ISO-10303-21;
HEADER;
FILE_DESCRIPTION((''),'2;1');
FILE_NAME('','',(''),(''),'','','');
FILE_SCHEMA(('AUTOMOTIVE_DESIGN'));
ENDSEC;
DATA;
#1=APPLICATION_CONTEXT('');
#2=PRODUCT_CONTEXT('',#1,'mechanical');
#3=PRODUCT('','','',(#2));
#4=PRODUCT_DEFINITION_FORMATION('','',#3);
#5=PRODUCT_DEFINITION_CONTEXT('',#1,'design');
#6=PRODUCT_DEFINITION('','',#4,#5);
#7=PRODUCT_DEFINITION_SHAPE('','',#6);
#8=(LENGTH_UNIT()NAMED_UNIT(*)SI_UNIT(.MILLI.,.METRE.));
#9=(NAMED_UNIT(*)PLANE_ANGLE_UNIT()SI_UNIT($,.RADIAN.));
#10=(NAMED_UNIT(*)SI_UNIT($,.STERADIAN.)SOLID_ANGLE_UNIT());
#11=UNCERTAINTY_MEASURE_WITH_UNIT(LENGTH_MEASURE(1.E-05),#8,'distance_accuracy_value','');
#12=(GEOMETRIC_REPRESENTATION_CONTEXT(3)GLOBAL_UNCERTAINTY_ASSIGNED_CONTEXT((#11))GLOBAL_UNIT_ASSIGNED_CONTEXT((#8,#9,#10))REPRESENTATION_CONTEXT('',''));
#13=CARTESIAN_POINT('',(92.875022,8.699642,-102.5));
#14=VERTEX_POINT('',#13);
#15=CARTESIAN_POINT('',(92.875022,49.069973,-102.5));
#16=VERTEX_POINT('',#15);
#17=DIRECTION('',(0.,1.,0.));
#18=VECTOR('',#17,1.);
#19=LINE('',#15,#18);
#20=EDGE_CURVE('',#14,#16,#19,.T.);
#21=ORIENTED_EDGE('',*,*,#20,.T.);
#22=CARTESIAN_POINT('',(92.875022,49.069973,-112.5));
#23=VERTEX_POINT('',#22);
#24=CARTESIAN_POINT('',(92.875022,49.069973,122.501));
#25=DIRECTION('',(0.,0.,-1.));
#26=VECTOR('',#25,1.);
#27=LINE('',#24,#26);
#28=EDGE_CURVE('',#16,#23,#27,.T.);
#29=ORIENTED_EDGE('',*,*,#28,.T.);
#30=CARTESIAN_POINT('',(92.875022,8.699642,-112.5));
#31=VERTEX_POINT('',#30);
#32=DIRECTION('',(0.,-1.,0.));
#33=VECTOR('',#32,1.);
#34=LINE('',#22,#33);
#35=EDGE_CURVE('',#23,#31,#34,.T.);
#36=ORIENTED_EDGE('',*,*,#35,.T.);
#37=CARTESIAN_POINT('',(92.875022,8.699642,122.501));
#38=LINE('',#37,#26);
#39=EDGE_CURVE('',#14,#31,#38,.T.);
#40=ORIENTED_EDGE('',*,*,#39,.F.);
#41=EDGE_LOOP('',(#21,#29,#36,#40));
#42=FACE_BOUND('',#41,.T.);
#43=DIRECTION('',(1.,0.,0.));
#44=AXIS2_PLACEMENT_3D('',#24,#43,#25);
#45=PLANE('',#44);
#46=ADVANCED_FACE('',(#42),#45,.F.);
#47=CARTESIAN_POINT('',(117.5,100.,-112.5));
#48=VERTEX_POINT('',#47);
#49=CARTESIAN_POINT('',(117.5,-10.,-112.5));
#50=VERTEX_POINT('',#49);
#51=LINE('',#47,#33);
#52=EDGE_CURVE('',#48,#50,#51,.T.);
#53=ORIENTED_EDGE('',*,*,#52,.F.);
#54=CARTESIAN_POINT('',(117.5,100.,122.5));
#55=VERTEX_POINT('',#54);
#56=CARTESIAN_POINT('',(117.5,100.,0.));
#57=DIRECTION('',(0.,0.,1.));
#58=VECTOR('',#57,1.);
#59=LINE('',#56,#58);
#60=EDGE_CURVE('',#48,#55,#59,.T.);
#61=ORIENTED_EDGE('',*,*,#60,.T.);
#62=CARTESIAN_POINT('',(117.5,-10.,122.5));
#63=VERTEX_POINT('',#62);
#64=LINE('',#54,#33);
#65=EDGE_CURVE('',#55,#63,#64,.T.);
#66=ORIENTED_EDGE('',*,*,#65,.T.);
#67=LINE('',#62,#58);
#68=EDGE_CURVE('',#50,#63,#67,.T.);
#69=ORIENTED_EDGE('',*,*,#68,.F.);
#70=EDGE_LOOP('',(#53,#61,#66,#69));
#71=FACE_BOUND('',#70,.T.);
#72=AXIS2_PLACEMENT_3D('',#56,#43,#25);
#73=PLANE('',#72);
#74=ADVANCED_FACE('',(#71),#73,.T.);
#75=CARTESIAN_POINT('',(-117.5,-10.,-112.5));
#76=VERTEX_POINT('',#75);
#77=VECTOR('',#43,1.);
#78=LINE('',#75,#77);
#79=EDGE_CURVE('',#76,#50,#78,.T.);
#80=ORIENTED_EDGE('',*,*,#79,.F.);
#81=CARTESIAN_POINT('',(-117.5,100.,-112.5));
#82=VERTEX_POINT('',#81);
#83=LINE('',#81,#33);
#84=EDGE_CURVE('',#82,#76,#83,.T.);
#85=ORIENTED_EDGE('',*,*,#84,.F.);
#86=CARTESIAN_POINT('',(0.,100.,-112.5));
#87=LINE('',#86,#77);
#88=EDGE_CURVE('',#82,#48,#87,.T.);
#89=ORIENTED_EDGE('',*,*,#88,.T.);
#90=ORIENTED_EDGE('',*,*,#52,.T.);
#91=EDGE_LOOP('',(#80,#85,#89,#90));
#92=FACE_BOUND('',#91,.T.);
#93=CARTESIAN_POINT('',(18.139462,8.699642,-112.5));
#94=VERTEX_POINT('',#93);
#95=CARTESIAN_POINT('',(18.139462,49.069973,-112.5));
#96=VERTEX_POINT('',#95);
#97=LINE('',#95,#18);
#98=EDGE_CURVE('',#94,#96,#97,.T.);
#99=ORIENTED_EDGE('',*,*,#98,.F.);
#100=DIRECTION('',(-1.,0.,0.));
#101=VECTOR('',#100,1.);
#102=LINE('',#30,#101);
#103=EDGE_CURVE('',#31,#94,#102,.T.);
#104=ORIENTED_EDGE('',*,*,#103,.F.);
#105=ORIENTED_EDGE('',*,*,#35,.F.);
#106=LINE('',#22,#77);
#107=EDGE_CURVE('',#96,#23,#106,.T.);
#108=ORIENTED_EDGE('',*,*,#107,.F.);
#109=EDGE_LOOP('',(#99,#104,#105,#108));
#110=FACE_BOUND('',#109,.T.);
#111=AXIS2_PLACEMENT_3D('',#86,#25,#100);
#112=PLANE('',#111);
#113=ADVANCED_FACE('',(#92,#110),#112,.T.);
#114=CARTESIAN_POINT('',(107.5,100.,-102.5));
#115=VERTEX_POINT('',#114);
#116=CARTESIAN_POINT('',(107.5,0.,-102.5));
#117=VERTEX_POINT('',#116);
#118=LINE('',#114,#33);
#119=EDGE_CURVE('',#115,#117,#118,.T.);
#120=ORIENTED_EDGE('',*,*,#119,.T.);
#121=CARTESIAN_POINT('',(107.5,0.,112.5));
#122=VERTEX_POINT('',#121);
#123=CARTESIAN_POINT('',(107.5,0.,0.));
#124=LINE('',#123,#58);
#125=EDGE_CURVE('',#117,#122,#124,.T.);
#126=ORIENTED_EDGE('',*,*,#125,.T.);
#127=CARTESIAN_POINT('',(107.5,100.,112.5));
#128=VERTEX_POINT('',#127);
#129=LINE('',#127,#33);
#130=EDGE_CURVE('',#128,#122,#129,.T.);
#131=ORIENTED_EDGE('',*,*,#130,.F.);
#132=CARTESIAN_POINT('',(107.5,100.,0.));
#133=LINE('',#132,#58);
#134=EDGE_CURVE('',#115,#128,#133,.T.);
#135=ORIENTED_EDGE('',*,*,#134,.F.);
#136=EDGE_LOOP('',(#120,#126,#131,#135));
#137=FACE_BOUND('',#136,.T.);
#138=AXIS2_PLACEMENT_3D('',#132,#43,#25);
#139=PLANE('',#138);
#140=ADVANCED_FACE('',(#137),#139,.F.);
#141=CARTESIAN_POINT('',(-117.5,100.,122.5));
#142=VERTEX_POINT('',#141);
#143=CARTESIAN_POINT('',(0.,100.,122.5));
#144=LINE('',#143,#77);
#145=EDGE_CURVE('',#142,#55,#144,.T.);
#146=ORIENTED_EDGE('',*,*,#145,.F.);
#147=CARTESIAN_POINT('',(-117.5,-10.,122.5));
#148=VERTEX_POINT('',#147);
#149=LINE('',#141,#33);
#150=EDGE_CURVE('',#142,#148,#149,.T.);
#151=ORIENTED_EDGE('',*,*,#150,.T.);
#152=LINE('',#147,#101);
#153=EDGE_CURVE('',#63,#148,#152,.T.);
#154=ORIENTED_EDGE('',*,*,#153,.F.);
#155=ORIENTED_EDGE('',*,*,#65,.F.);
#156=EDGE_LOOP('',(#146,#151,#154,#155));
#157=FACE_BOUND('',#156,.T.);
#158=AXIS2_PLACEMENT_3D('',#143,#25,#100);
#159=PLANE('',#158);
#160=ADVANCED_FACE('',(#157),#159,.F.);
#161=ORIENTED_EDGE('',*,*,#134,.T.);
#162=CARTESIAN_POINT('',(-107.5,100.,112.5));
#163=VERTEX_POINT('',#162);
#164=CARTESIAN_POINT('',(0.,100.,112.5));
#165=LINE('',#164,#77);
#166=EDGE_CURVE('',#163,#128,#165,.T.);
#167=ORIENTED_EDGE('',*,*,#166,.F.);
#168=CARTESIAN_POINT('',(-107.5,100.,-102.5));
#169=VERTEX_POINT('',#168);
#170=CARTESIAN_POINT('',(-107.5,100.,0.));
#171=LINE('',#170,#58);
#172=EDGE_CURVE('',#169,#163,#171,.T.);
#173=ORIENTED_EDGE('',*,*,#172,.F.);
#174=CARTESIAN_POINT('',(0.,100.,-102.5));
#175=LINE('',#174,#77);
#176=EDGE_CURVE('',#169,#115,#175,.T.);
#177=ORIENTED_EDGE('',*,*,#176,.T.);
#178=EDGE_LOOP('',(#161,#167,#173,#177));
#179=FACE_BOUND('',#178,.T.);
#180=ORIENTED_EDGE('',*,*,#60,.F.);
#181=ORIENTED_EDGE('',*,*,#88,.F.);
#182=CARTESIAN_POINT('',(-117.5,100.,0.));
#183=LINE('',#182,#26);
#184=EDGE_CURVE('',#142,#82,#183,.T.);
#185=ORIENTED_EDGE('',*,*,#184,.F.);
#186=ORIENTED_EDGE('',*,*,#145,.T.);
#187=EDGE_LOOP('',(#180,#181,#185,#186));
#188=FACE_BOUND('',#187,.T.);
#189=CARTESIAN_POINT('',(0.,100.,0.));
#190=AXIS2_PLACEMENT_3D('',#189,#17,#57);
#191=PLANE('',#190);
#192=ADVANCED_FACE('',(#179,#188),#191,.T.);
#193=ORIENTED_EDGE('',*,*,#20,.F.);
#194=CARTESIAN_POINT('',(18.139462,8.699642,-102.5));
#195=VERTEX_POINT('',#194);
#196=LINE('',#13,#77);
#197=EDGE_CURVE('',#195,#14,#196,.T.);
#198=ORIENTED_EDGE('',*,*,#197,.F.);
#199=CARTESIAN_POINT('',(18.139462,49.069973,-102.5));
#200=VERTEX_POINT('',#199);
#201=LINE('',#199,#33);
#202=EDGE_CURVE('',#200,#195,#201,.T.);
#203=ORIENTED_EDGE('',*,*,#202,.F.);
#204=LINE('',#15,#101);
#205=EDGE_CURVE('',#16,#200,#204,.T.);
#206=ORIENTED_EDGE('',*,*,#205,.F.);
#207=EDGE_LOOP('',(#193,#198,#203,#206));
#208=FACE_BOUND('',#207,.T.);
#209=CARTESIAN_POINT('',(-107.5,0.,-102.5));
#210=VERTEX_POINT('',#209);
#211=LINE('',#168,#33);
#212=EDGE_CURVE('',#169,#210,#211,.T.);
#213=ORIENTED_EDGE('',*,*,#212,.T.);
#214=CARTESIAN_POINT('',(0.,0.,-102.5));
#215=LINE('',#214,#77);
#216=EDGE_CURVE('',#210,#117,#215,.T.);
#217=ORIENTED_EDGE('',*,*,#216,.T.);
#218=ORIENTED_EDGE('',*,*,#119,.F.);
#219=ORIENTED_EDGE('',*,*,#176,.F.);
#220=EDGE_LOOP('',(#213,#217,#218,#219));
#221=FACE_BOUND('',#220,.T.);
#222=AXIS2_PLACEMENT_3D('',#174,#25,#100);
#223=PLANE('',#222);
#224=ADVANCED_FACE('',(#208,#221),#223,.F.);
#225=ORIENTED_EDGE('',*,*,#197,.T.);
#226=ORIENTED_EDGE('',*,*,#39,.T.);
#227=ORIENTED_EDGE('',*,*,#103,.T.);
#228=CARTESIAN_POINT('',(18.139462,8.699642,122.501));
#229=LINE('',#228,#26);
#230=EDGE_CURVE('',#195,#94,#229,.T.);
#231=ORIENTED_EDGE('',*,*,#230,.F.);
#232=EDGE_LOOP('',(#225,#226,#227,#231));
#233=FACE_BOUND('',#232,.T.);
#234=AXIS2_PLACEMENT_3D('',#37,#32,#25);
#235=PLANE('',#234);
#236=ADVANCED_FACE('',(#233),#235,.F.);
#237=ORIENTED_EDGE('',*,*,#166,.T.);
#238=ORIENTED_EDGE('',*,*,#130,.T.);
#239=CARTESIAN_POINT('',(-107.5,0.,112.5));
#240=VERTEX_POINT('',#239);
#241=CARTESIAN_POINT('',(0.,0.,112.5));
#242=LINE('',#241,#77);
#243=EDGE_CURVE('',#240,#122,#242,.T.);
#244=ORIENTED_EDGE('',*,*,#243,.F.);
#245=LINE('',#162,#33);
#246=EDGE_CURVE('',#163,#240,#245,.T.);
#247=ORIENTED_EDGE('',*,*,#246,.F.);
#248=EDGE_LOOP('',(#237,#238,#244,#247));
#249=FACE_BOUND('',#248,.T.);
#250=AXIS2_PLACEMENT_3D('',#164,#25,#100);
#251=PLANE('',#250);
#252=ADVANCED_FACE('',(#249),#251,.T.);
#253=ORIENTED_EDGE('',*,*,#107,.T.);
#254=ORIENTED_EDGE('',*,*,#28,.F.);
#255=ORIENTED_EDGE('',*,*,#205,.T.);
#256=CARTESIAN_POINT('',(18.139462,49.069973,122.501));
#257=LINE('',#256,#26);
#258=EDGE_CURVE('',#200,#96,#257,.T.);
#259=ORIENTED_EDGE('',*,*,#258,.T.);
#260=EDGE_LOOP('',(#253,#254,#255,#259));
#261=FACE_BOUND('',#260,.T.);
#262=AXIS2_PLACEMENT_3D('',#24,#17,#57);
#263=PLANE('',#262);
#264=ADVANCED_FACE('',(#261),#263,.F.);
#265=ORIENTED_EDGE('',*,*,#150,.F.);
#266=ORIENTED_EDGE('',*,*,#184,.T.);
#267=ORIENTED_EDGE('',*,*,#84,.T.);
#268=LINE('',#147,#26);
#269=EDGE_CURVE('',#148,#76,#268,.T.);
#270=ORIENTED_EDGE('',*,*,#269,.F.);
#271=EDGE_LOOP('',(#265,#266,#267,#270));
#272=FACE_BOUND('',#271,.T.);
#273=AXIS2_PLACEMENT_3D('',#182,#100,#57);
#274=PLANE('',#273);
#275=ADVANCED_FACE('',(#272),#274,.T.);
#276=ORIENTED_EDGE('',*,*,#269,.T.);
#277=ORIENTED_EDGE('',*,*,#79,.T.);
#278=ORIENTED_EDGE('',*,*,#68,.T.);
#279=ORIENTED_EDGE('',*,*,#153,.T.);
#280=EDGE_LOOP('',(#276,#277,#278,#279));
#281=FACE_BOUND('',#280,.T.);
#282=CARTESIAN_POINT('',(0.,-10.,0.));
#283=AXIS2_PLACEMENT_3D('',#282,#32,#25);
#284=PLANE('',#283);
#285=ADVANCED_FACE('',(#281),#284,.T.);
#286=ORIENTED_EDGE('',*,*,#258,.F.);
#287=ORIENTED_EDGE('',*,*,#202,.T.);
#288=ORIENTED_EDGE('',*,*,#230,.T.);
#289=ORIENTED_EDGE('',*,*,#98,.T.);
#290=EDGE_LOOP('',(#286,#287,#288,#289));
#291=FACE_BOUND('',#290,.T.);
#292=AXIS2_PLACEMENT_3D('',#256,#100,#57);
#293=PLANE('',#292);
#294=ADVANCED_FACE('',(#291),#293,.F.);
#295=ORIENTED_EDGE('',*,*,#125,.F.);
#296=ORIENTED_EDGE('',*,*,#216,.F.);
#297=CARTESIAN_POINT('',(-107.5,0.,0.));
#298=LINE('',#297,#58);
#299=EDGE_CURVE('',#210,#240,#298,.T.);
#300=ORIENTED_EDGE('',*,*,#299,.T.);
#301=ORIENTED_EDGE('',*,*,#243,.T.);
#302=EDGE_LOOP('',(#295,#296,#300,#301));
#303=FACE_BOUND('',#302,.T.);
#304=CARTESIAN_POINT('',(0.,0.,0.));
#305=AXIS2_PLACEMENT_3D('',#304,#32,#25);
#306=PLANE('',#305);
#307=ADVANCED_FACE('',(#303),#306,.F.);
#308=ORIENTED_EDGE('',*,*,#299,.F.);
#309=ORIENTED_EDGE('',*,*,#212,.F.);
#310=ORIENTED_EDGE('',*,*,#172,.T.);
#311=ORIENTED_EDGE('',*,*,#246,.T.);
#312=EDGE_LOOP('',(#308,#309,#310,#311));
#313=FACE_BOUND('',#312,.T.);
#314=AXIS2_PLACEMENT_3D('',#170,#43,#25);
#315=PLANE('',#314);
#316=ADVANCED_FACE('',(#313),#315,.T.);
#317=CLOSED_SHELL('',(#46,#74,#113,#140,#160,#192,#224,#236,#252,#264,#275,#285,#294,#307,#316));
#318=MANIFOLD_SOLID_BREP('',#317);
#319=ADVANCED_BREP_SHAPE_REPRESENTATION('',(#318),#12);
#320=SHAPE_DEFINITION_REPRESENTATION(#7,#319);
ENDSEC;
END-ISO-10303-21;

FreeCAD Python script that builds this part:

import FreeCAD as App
import Part
import Sketcher
from FreeCAD import Vector

doc = App.newDocument("Part")
body = doc.addObject("PartDesign::Body", "Body")

# Sketch on XZ plane
sketch1 = body.newObject("Sketcher::SketchObject", "Sketch")
sketch1.AttachmentSupport = (doc.getObject("XZ_Plane"), [""])
sketch1.MapMode = "FlatFace"
sketch1.addGeometry([
    Part.LineSegment(Vector(118, 122, 0), Vector(118, -112, 0)),  # 0
    Part.LineSegment(Vector(118, -112, 0), Vector(-118, -112, 0)),  # 1
    Part.LineSegment(Vector(-118, -112, 0), Vector(-118, 122, 0)),  # 2
    Part.LineSegment(Vector(-118, 122, 0), Vector(118, 122, 0)),  # 3
    Part.LineSegment(Vector(-108, 112, 0), Vector(-108, -102, 0)),  # 4
    Part.LineSegment(Vector(-108, -102, 0), Vector(108, -102, 0)),  # 5
    Part.LineSegment(Vector(108, -102, 0), Vector(108, 112, 0)),  # 6
    Part.LineSegment(Vector(108, 112, 0), Vector(-108, 112, 0)),  # 7
], False)
sketch1.addConstraint([
    Sketcher.Constraint("Coincident", 0, 2, 1, 1),
    Sketcher.Constraint("Coincident", 1, 2, 2, 1),
    Sketcher.Constraint("Coincident", 2, 2, 3, 1),
    Sketcher.Constraint("Coincident", 3, 2, 0, 1),
    Sketcher.Constraint("Coincident", 4, 2, 5, 1),
    Sketcher.Constraint("Coincident", 5, 2, 6, 1),
    Sketcher.Constraint("Coincident", 6, 2, 7, 1),
    Sketcher.Constraint("Coincident", 7, 2, 4, 1),
    Sketcher.Constraint("Vertical", 0),
    Sketcher.Constraint("Horizontal", 1),
    Sketcher.Constraint("Vertical", 2),
    Sketcher.Constraint("Horizontal", 3),
    Sketcher.Constraint("Vertical", 4),
    Sketcher.Constraint("Horizontal", 5),
    Sketcher.Constraint("Vertical", 6),
    Sketcher.Constraint("Horizontal", 7),
    Sketcher.Constraint("Equal", 3, 0),
    Sketcher.Constraint("Equal", 7, 4),
    Sketcher.Constraint("DistanceX", 1, 2, 1, 1, 235.0),
    Sketcher.Constraint("DistanceX", 5, 1, 5, 2, 215.0),
    Sketcher.Constraint("DistanceX", 1, 2, 4, 2, 10.0),
    Sketcher.Constraint("DistanceY", 1, 2, 4, 2, 10.0),
    Sketcher.Constraint("DistanceX", -1, 1, 0, 2, 117.5),
    Sketcher.Constraint("DistanceY", 0, 2, -1, 1, 112.5),
])
pad1 = body.newObject("PartDesign::Pad", "Pad")
pad1.Profile = sketch1
pad1.Length = 100
pad1.Reversed = True

# Sketch on XZ plane
sketch2 = body.newObject("Sketcher::SketchObject", "Sketch001")
sketch2.AttachmentSupport = (doc.getObject("XZ_Plane"), [""])
sketch2.MapMode = "FlatFace"
sketch2.addGeometry([
    Part.LineSegment(Vector(-118, 122, 0), Vector(-118, -112, 0)),
    Part.LineSegment(Vector(-118, -112, 0), Vector(118, -112, 0)),
    Part.LineSegment(Vector(118, -112, 0), Vector(118, 122, 0)),
    Part.LineSegment(Vector(118, 122, 0), Vector(-118, 122, 0)),
], False)
sketch2.addConstraint([
    Sketcher.Constraint("Coincident", 0, 2, 1, 1),
    Sketcher.Constraint("Coincident", 1, 2, 2, 1),
    Sketcher.Constraint("Coincident", 2, 2, 3, 1),
    Sketcher.Constraint("Coincident", 3, 2, 0, 1),
    Sketcher.Constraint("Vertical", 0),
    Sketcher.Constraint("Horizontal", 1),
    Sketcher.Constraint("Vertical", 2),
    Sketcher.Constraint("Horizontal", 3),
    Sketcher.Constraint("Equal", 3, 0),
    Sketcher.Constraint("DistanceX", 1, 1, 1, 2, 235.0),
    Sketcher.Constraint("DistanceX", 0, 2, -1, 1, 117.5),
    Sketcher.Constraint("DistanceY", 0, 2, -1, 1, 112.5),
])
pad2 = body.newObject("PartDesign::Pad", "Pad001")
pad2.Profile = sketch2
pad2.Length = 10

# Sketch on XY plane
sketch3 = body.newObject("Sketcher::SketchObject", "Sketch002")
sketch3.AttachmentSupport = (doc.getObject("XY_Plane"), [""])
sketch3.MapMode = "FlatFace"
sketch3.AttachmentOffset = App.Placement(Vector(0, 0, -112.5), App.Rotation())
sketch3.addGeometry([
    Part.LineSegment(Vector(93, 49, 0), Vector(93, 9, 0)),
    Part.LineSegment(Vector(93, 9, 0), Vector(18, 9, 0)),
    Part.LineSegment(Vector(18, 9, 0), Vector(18, 49, 0)),
    Part.LineSegment(Vector(18, 49, 0), Vector(93, 49, 0)),
], False)
sketch3.addConstraint([
    Sketcher.Constraint("Coincident", 0, 2, 1, 1),
    Sketcher.Constraint("Coincident", 1, 2, 2, 1),
    Sketcher.Constraint("Coincident", 2, 2, 3, 1),
    Sketcher.Constraint("Coincident", 3, 2, 0, 1),
    Sketcher.Constraint("Vertical", 0),
    Sketcher.Constraint("Horizontal", 1),
    Sketcher.Constraint("Vertical", 2),
    Sketcher.Constraint("Horizontal", 3),
    Sketcher.Constraint("DistanceX", 1, 2, 1, 1, 74.73556),
    Sketcher.Constraint("DistanceY", 0, 2, 0, 1, 40.370331),
    Sketcher.Constraint("DistanceX", -1, 1, 0, 2, 92.875022),
    Sketcher.Constraint("DistanceY", -1, 1, 0, 2, 8.699642),
])
pocket1 = body.newObject("PartDesign::Pocket", "Pocket")
pocket1.Profile = sketch3
pocket1.Type = "UpToFirst"
pocket1.Reversed = True

doc.recompute()
